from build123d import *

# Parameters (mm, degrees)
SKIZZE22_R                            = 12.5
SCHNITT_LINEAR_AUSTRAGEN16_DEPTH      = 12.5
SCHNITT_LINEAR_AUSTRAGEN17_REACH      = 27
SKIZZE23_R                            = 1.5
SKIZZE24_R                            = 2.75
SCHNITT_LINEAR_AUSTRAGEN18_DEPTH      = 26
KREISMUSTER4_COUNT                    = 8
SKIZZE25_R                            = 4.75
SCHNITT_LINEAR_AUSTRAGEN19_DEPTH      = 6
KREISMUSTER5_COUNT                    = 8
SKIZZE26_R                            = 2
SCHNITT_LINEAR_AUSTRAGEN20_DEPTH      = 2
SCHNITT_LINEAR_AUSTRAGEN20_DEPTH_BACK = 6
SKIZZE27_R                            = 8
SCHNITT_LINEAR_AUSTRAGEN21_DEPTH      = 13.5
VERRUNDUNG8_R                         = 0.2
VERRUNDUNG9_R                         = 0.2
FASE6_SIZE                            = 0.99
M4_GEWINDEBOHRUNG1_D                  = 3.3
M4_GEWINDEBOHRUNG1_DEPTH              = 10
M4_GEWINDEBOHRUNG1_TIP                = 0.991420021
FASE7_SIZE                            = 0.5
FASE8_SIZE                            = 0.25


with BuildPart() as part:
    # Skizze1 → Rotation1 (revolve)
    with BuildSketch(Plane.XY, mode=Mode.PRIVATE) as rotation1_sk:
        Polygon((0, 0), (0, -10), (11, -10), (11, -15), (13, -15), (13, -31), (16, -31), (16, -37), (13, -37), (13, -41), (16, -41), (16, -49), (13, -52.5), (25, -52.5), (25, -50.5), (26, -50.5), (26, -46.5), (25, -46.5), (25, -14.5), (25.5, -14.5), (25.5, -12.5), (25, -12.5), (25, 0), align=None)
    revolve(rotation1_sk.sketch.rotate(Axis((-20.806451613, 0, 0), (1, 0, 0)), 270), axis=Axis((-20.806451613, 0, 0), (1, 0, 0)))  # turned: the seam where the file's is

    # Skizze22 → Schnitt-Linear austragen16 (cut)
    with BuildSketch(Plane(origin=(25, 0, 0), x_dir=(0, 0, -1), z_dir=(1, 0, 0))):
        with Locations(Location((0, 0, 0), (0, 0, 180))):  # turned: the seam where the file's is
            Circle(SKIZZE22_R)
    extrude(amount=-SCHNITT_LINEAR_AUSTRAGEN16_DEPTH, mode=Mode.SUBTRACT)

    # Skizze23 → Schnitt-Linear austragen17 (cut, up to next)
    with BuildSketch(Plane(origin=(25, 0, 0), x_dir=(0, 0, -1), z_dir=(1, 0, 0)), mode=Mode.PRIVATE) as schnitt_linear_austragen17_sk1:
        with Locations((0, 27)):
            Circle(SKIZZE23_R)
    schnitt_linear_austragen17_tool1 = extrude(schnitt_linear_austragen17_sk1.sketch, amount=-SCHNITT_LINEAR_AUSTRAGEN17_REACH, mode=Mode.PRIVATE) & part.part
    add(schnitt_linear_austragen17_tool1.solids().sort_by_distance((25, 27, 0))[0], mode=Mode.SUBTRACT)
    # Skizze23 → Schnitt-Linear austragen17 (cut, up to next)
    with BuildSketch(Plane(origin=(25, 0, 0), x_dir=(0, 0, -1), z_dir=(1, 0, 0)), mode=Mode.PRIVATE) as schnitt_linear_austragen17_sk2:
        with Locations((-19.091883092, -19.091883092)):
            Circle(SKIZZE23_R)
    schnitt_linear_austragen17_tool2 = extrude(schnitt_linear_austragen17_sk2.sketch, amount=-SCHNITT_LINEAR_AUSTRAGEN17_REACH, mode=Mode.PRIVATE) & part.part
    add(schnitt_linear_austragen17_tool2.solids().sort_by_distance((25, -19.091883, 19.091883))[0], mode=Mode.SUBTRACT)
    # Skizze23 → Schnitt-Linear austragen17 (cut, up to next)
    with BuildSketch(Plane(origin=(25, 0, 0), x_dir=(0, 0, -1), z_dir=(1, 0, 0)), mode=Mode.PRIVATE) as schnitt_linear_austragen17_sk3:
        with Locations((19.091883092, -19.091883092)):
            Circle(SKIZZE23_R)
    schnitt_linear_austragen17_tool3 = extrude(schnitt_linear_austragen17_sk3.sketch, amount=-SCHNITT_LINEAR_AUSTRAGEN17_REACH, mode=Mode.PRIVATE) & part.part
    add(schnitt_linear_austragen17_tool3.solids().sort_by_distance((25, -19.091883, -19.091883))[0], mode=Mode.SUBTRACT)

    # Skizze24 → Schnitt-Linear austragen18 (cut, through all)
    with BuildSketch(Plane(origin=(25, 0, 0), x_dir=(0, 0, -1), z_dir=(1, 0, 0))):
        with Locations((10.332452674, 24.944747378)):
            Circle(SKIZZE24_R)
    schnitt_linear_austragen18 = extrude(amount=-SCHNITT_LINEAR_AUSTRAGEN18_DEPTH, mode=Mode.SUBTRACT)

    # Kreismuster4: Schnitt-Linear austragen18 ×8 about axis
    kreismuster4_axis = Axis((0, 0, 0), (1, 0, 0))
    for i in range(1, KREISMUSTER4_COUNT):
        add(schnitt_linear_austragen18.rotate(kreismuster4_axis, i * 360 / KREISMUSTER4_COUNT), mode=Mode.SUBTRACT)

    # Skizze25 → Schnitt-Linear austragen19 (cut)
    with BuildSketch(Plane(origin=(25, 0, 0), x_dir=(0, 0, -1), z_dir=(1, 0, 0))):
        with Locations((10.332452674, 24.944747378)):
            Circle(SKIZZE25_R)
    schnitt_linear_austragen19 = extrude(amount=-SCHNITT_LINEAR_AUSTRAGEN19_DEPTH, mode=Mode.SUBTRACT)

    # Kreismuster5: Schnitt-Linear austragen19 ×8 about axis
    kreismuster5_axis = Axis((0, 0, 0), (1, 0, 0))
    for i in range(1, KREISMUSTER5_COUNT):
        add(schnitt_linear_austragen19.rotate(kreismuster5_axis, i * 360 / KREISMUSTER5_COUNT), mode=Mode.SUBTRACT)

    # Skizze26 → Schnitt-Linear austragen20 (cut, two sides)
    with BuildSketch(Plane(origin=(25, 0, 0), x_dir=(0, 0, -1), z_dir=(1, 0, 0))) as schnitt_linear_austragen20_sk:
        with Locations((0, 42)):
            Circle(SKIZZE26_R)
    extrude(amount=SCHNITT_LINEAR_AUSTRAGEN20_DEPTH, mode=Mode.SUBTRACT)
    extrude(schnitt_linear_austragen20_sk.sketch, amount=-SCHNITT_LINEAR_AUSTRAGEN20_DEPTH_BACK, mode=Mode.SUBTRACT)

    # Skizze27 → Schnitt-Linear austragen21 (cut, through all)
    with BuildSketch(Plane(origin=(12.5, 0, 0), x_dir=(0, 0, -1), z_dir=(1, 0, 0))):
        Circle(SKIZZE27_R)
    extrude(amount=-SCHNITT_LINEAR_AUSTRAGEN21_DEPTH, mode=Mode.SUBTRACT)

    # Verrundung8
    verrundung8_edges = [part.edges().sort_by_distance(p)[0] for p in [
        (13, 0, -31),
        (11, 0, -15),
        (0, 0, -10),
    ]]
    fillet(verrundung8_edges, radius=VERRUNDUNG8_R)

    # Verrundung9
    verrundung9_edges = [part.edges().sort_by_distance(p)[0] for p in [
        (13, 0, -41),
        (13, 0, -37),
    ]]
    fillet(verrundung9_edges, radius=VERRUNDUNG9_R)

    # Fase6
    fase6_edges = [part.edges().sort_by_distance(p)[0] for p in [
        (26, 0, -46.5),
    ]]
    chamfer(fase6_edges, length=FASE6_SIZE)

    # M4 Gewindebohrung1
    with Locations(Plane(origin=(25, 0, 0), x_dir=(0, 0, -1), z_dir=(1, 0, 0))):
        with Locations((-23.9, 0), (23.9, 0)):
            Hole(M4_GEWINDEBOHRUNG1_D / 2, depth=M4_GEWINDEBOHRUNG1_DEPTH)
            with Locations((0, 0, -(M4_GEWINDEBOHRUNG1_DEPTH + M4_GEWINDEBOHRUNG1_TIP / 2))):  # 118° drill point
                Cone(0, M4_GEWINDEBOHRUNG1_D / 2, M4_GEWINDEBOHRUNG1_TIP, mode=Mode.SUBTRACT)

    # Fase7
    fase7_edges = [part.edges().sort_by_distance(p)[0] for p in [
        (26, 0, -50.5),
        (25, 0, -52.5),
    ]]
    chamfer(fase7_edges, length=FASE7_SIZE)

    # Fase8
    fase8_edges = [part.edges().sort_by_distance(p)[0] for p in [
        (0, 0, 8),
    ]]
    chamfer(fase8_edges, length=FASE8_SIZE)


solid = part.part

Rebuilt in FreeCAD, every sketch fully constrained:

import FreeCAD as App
import Part
import Sketcher


def edges_at(feature, points):
    """Names of the edges that pass closest to the given points."""
    edges = feature.Shape.Edges
    near = lambda p: min(range(len(edges)), key=lambda i: edges[i].distToShape(Part.Vertex(*p))[0])
    return sorted({f"Edge{near(p) + 1}" for p in points})


def add_polygon(sketch, points):
    """Adds a closed chain of lines whose ends are joined by coincident constraints."""
    first, n = sketch.GeometryCount, len(points)
    for a, b in zip(points, points[1:] + points[:1]):
        sketch.addGeometry(Part.LineSegment(App.Vector(*a, 0), App.Vector(*b, 0)), False)
    for i in range(n):
        sketch.addConstraint(Sketcher.Constraint("Coincident", first + i, 2, first + (i + 1) % n, 1))

doc = App.newDocument("Part")
body = doc.addObject("PartDesign::Body", "Body")

# Sketch on XY plane
sketch1 = body.newObject("Sketcher::SketchObject", "Sketch")
sketch1.AttachmentSupport = (doc.getObject("XY_Plane"), [""])
sketch1.MapMode = "FlatFace"
add_polygon(sketch1, [(0, 0), (0, -10), (11, -10), (11, -15), (13, -15), (13, -31), (16, -31), (16, -37), (13, -37), (13, -41), (16, -41), (16, -49), (13, -52.5), (25, -52.5), (25, -50.5), (26, -50.5), (26, -46.5), (25, -46.5), (25, -14.5), (25.5, -14.5), (25.5, -12.5), (25, -12.5), (25, 0)])  # lines 0-22
sketch1.addConstraint([
    Sketcher.Constraint("Vertical", 0),
    Sketcher.Constraint("Horizontal", 1),
    Sketcher.Constraint("Vertical", 2),
    Sketcher.Constraint("Horizontal", 3),
    Sketcher.Constraint("Vertical", 4),
    Sketcher.Constraint("Horizontal", 5),
    Sketcher.Constraint("Vertical", 6),
    Sketcher.Constraint("Horizontal", 7),
    Sketcher.Constraint("Vertical", 8),
    Sketcher.Constraint("Horizontal", 9),
    Sketcher.Constraint("Vertical", 10),
    Sketcher.Constraint("Horizontal", 12),
    Sketcher.Constraint("Vertical", 13),
    Sketcher.Constraint("Horizontal", 14),
    Sketcher.Constraint("Vertical", 15),
    Sketcher.Constraint("Horizontal", 16),
    Sketcher.Constraint("Vertical", 17),
    Sketcher.Constraint("Horizontal", 18),
    Sketcher.Constraint("Vertical", 19),
    Sketcher.Constraint("Horizontal", 20),
    Sketcher.Constraint("Vertical", 21),
    Sketcher.Constraint("Horizontal", 22),
    Sketcher.Constraint("Coincident", 22, 2, -1, 1),
    Sketcher.Constraint("Vertical", 4, 2, 7, 2),
    Sketcher.Constraint("Vertical", 6, 2, 9, 2),
    Sketcher.Constraint("Vertical", 8, 2, 11, 2),
    Sketcher.Constraint("Vertical", 13, 2, 16, 2),
    Sketcher.Constraint("Vertical", 17, 2, 20, 2),
    Sketcher.Constraint("Equal", 3, 13),
    Sketcher.Constraint("Equal", 8, 15),
    Sketcher.Constraint("Equal", 13, 19),
    Sketcher.Constraint("DistanceX", 1, 1, 1, 2, 11.0),
    Sketcher.Constraint("DistanceX", 3, 1, 3, 2, 2.0),
    Sketcher.Constraint("DistanceX", 5, 1, 5, 2, 3.0),
    Sketcher.Constraint("DistanceX", 12, 1, 12, 2, 12.0),
    Sketcher.Constraint("DistanceX", 14, 1, 14, 2, 1.0),
    Sketcher.Constraint("DistanceY", 0, 2, 0, 1, 10.0),
    Sketcher.Constraint("DistanceY", 2, 2, 2, 1, 5.0),
    Sketcher.Constraint("DistanceY", 4, 2, 4, 1, 16.0),
    Sketcher.Constraint("DistanceY", 6, 2, 6, 1, 6.0),
    Sketcher.Constraint("DistanceY", 8, 2, 8, 1, 4.0),
    Sketcher.Constraint("DistanceY", 10, 2, 10, 1, 8.0),
    Sketcher.Constraint("DistanceY", 17, 1, 17, 2, 32.0),
    Sketcher.Constraint("DistanceX", 18, 1, 18, 2, 0.5),
    Sketcher.Constraint("DistanceY", 21, 1, 21, 2, 12.5),
])
revolution = body.newObject("PartDesign::Revolution", "Revolution")
revolution.Profile = sketch1
revolution.ReferenceAxis = (sketch1, ["H_Axis"])
revolution.Angle = 360

# Sketch on YZ plane
sketch2 = body.newObject("Sketcher::SketchObject", "Sketch001")
sketch2.AttachmentSupport = (doc.getObject("YZ_Plane"), [""])
sketch2.MapMode = "FlatFace"
sketch2.AttachmentOffset = App.Placement(App.Vector(0, 0, 25), App.Rotation())
sketch2.addGeometry(Part.Circle(App.Vector(0, 0, 0), App.Vector(0, 0, 1), 12.5), False)
sketch2.addConstraint([
    Sketcher.Constraint("Coincident", 0, 3, -1, 1),
    Sketcher.Constraint("Diameter", 0, 25.0),
])
pocket1 = body.newObject("PartDesign::Pocket", "Pocket")
pocket1.Profile = sketch2
pocket1.Length = 12.5

# Sketch on YZ plane
sketch3 = body.newObject("Sketcher::SketchObject", "Sketch002")
sketch3.AttachmentSupport = (doc.getObject("YZ_Plane"), [""])
sketch3.MapMode = "FlatFace"
sketch3.AttachmentOffset = App.Placement(App.Vector(0, 0, 25), App.Rotation())
sketch3.addGeometry(Part.Circle(App.Vector(27, 0, 0), App.Vector(0, 0, 1), 1.5), False)
sketch3.addConstraint([
    Sketcher.Constraint("PointOnObject", 0, 3, -1),
    Sketcher.Constraint("Diameter", 0, 3.0),
    Sketcher.Constraint("DistanceX", -1, 1, 0, 3, 27.0),
])
pocket2 = body.newObject("PartDesign::Pocket", "Pocket001")
pocket2.Profile = sketch3
pocket2.Type = "UpToFirst"

# Sketch on YZ plane
sketch4 = body.newObject("Sketcher::SketchObject", "Sketch003")
sketch4.AttachmentSupport = (doc.getObject("YZ_Plane"), [""])
sketch4.MapMode = "FlatFace"
sketch4.AttachmentOffset = App.Placement(App.Vector(0, 0, 25), App.Rotation())
sketch4.addGeometry(Part.Circle(App.Vector(-19.091883, 19.091883, 0), App.Vector(0, 0, 1), 1.5), False)
sketch4.addConstraint([
    Sketcher.Constraint("Diameter", 0, 3.0),
    Sketcher.Constraint("DistanceX", 0, 3, -1, 1, 19.091883),
    Sketcher.Constraint("DistanceY", -1, 1, 0, 3, 19.091883),
])
pocket3 = body.newObject("PartDesign::Pocket", "Pocket002")
pocket3.Profile = sketch4
pocket3.Type = "UpToFirst"

# Sketch on YZ plane
sketch5 = body.newObject("Sketcher::SketchObject", "Sketch004")
sketch5.AttachmentSupport = (doc.getObject("YZ_Plane"), [""])
sketch5.MapMode = "FlatFace"
sketch5.AttachmentOffset = App.Placement(App.Vector(0, 0, 25), App.Rotation())
sketch5.addGeometry(Part.Circle(App.Vector(-19.091883, -19.091883, 0), App.Vector(0, 0, 1), 1.5), False)
sketch5.addConstraint([
    Sketcher.Constraint("Diameter", 0, 3.0),
    Sketcher.Constraint("DistanceX", 0, 3, -1, 1, 19.091883),
    Sketcher.Constraint("DistanceY", 0, 3, -1, 1, 19.091883),
])
pocket4 = body.newObject("PartDesign::Pocket", "Pocket003")
pocket4.Profile = sketch5
pocket4.Type = "UpToFirst"

# Sketch on YZ plane
sketch6 = body.newObject("Sketcher::SketchObject", "Sketch005")
sketch6.AttachmentSupport = (doc.getObject("YZ_Plane"), [""])
sketch6.MapMode = "FlatFace"
sketch6.AttachmentOffset = App.Placement(App.Vector(0, 0, 25), App.Rotation())
sketch6.addGeometry(Part.Circle(App.Vector(24.944747, -10.332453, 0), App.Vector(0, 0, 1), 2.75), False)
sketch6.addConstraint([
    Sketcher.Constraint("Diameter", 0, 5.5),
    Sketcher.Constraint("DistanceX", -1, 1, 0, 3, 24.944747),
    Sketcher.Constraint("DistanceY", 0, 3, -1, 1, 10.332453),
])
pocket5 = body.newObject("PartDesign::Pocket", "Pocket004")
pocket5.Profile = sketch6
pocket5.Type = "ThroughAll"
doc.recompute()

polarpattern = body.newObject("PartDesign::PolarPattern", "PolarPattern")
polarpattern.Originals = [pocket5]
polarpattern.Axis = (doc.getObject("X_Axis"), [""])
polarpattern.Angle = 360
polarpattern.Occurrences = 8
body.Tip = polarpattern

# Sketch on YZ plane
sketch7 = body.newObject("Sketcher::SketchObject", "Sketch006")
sketch7.AttachmentSupport = (doc.getObject("YZ_Plane"), [""])
sketch7.MapMode = "FlatFace"
sketch7.AttachmentOffset = App.Placement(App.Vector(0, 0, 25), App.Rotation())
sketch7.addGeometry(Part.Circle(App.Vector(24.944747, -10.332453, 0), App.Vector(0, 0, 1), 4.75), False)
sketch7.addConstraint([
    Sketcher.Constraint("Diameter", 0, 9.5),
    Sketcher.Constraint("DistanceX", -1, 1, 0, 3, 24.944747),
    Sketcher.Constraint("DistanceY", 0, 3, -1, 1, 10.332453),
])
pocket6 = body.newObject("PartDesign::Pocket", "Pocket005")
pocket6.Profile = sketch7
pocket6.Length = 6
doc.recompute()

polarpattern2 = body.newObject("PartDesign::PolarPattern", "PolarPattern001")
polarpattern2.Originals = [pocket6]
polarpattern2.Axis = (doc.getObject("X_Axis"), [""])
polarpattern2.Angle = 360
polarpattern2.Occurrences = 8
body.Tip = polarpattern2

# Sketch on YZ plane
sketch8 = body.newObject("Sketcher::SketchObject", "Sketch007")
sketch8.AttachmentSupport = (doc.getObject("YZ_Plane"), [""])
sketch8.MapMode = "FlatFace"
sketch8.AttachmentOffset = App.Placement(App.Vector(0, 0, 25), App.Rotation())
sketch8.addGeometry(Part.Circle(App.Vector(42, 0, 0), App.Vector(0, 0, 1), 2), False)
sketch8.addConstraint([
    Sketcher.Constraint("PointOnObject", 0, 3, -1),
    Sketcher.Constraint("Diameter", 0, 4.0),
    Sketcher.Constraint("DistanceX", -1, 1, 0, 3, 42.0),
])
pocket7 = body.newObject("PartDesign::Pocket", "Pocket006")
pocket7.Profile = sketch8
pocket7.Type = "TwoLengths"
pocket7.Length = 2
pocket7.Length2 = 6
pocket7.Reversed = True

# Sketch on YZ plane
sketch9 = body.newObject("Sketcher::SketchObject", "Sketch008")
sketch9.AttachmentSupport = (doc.getObject("YZ_Plane"), [""])
sketch9.MapMode = "FlatFace"
sketch9.AttachmentOffset = App.Placement(App.Vector(0, 0, 12.5), App.Rotation())
sketch9.addGeometry(Part.Circle(App.Vector(0, 0, 0), App.Vector(0, 0, 1), 8), False)
sketch9.addConstraint([
    Sketcher.Constraint("Coincident", 0, 3, -1, 1),
    Sketcher.Constraint("Diameter", 0, 16.0),
])
pocket8 = body.newObject("PartDesign::Pocket", "Pocket007")
pocket8.Profile = sketch9
pocket8.Type = "ThroughAll"
doc.recompute()

fillet = body.newObject("PartDesign::Fillet", "Fillet")
fillet.Base = (pocket8, edges_at(pocket8, [(13, 0, -31), (11, 0, -15), (0, 0, -10)]))
fillet.Radius = 0.2
doc.recompute()

fillet2 = body.newObject("PartDesign::Fillet", "Fillet001")
fillet2.Base = (fillet, edges_at(fillet, [(13, 0, -41), (13, 0, -37)]))
fillet2.Radius = 0.2
doc.recompute()

chamfer = body.newObject("PartDesign::Chamfer", "Chamfer")
chamfer.Base = (fillet2, edges_at(fillet2, [(26, 0, -46.5)]))
chamfer.Size = 0.99

# Sketch on YZ plane
sketch10 = body.newObject("Sketcher::SketchObject", "Sketch009")
sketch10.AttachmentSupport = (doc.getObject("YZ_Plane"), [""])
sketch10.MapMode = "FlatFace"
sketch10.AttachmentOffset = App.Placement(App.Vector(0, 0, 25), App.Rotation())
sketch10.addGeometry([
    Part.Circle(App.Vector(0, 23.9, 0), App.Vector(0, 0, 1), 1.65),
    Part.Circle(App.Vector(0, -23.9, 0), App.Vector(0, 0, 1), 1.65),
], False)
sketch10.addConstraint([
    Sketcher.Constraint("Equal", 0, 1),
    Sketcher.Constraint("Symmetric", 0, 3, 1, 3, -1, 1),
    Sketcher.Constraint("PointOnObject", 0, 3, -2),
    Sketcher.Constraint("Diameter", 0, 3.3),
    Sketcher.Constraint("DistanceY", -1, 1, 0, 3, 23.9),
])
doc.recompute()
hole = body.newObject("PartDesign::Hole", "Hole")
hole.Profile = sketch10
hole.ThreadType = "None"
hole.Diameter = 3.3
hole.DepthType = "Dimension"
hole.Depth = 10
hole.DrillPoint = "Angled"
hole.DrillPointAngle = 118
doc.recompute()

chamfer2 = body.newObject("PartDesign::Chamfer", "Chamfer001")
chamfer2.Base = (hole, edges_at(hole, [(26, 0, -50.5), (25, 0, -52.5)]))
chamfer2.Size = 0.5
doc.recompute()

chamfer3 = body.newObject("PartDesign::Chamfer", "Chamfer002")
chamfer3.Base = (chamfer2, edges_at(chamfer2, [(0, 0, 8)]))
chamfer3.Size = 0.25

doc.recompute()
